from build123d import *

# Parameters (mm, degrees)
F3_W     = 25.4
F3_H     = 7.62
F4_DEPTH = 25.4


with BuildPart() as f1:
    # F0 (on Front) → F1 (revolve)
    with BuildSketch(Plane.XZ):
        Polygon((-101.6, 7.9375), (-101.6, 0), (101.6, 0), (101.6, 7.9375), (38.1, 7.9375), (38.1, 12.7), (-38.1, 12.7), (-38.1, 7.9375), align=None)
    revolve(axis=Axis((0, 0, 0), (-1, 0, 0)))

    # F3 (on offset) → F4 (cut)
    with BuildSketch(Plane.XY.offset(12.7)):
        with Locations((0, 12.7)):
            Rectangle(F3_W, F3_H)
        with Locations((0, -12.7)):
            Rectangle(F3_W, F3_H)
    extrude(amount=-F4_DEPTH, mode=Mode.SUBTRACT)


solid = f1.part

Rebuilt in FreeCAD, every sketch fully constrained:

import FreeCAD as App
import Part
import Sketcher
from FreeCAD import Vector
Q = App.Units.Quantity


def add_polygon(sketch, points):
    """Adds a closed chain of lines whose ends are joined by coincident constraints."""
    first, n = sketch.GeometryCount, len(points)
    for a, b in zip(points, points[1:] + points[:1]):
        sketch.addGeometry(Part.LineSegment(App.Vector(*a, 0), App.Vector(*b, 0)), False)
    for i in range(n):
        sketch.addConstraint(Sketcher.Constraint("Coincident", first + i, 2, first + (i + 1) % n, 1))

doc = App.newDocument("Part")
params = doc.addObject("Spreadsheet::Sheet", "Params")
for row, (alias, value) in enumerate([
    ("sketch1_width", "8 in"),
    ("sketch1_width2", "3 in"),
    ("sketch1_height", "0.3125 in"),
    ("revolution_angle", "360 deg"),
    ("sketch2_width", "1 in"),
    ("sketch2_height", "0.3 in"),
    ("pocket1_length", "1 in"),
], start=1):
    params.set(f"A{row}", alias)
    params.set(f"B{row}", "=" + value)
    params.setAlias(f"B{row}", alias)

body = doc.addObject("PartDesign::Body", "Body")

sketch1 = doc.addObject("Sketcher::SketchObject", "Sketch")
body.addObject(sketch1)
sketch1.AttachmentSupport = (doc.XZ_Plane, [""])
sketch1.MapMode = "FlatFace"
add_polygon(sketch1, [(-101.6, 7.9), (-101.6, 0), (101.6, 0), (101.6, 7.9), (38.1, 7.9), (38.1, 12.7), (-38.1, 12.7), (-38.1, 7.9)])
sketch1.addConstraint(Sketcher.Constraint("Vertical", 0))
sketch1.addConstraint(Sketcher.Constraint("Horizontal", 1))
sketch1.addConstraint(Sketcher.Constraint("Vertical", 2))
sketch1.addConstraint(Sketcher.Constraint("Horizontal", 3))
sketch1.addConstraint(Sketcher.Constraint("Vertical", 4))
sketch1.addConstraint(Sketcher.Constraint("Horizontal", 5))
sketch1.addConstraint(Sketcher.Constraint("Vertical", 6))
sketch1.addConstraint(Sketcher.Constraint("Horizontal", 7))
sketch1.addConstraint(Sketcher.Constraint("Symmetric", 0, 2, 1, 2, -1, 1))
sketch1.addConstraint(Sketcher.Constraint("Symmetric", 3, 2, 6, 2, -2))
sketch1.addConstraint(Sketcher.Constraint("DistanceX", 1, 1, 1, 2, Q("8 in")))
sketch1.addConstraint(Sketcher.Constraint("DistanceX", 5, 2, 5, 1, Q("3 in")))
sketch1.addConstraint(Sketcher.Constraint("DistanceY", -1, 1, 4, 2, Q("0.5 in")))
sketch1.addConstraint(Sketcher.Constraint("DistanceY", 0, 2, 0, 1, Q("0.3125 in")))
sketch1.setExpression("Constraints[18]", "Params.sketch1_width")
sketch1.setExpression("Constraints[19]", "Params.sketch1_width2")
sketch1.setExpression("Constraints[21]", "Params.sketch1_height")
revolution = doc.addObject("PartDesign::Revolution", "Revolution")
body.addObject(revolution)
revolution.Profile = sketch1
revolution.ReferenceAxis = (sketch1, ["H_Axis"])
revolution.setExpression("Angle", "Params.revolution_angle")

sketch2 = doc.addObject("Sketcher::SketchObject", "Sketch001")
body.addObject(sketch2)
sketch2.AttachmentSupport = (doc.XY_Plane, [""])
sketch2.MapMode = "FlatFace"
sketch2.AttachmentOffset = App.Placement(Vector(0, 0, 0.5 * 25.4), App.Rotation())
add_polygon(sketch2, [(-13, 17), (-13, 9), (13, 9), (13, 17)])
add_polygon(sketch2, [(-13, -9), (-13, -17), (13, -17), (13, -9)])
sketch2.addConstraint(Sketcher.Constraint("Vertical", 0))
sketch2.addConstraint(Sketcher.Constraint("Horizontal", 1))
sketch2.addConstraint(Sketcher.Constraint("Vertical", 2))
sketch2.addConstraint(Sketcher.Constraint("Horizontal", 3))
sketch2.addConstraint(Sketcher.Constraint("Vertical", 4))
sketch2.addConstraint(Sketcher.Constraint("Horizontal", 5))
sketch2.addConstraint(Sketcher.Constraint("Vertical", 6))
sketch2.addConstraint(Sketcher.Constraint("Horizontal", 7))
sketch2.addConstraint(Sketcher.Constraint("Symmetric", 2, 2, 4, 2, -1, 1))
sketch2.addConstraint(Sketcher.Constraint("Symmetric", 0, 2, 6, 2, -1, 1))
sketch2.addConstraint(Sketcher.Constraint("Vertical", 3, 2, 4, 2))
sketch2.addConstraint(Sketcher.Constraint("DistanceX", 1, 1, 1, 2, Q("1 in")))
sketch2.addConstraint(Sketcher.Constraint("DistanceY", 0, 2, 0, 1, Q("0.3 in")))
sketch2.addConstraint(Sketcher.Constraint("DistanceY", 4, 2, 0, 2, Q("1 in")))
sketch2.setExpression("Constraints[19]", "Params.sketch2_width")
sketch2.setExpression("Constraints[20]", "Params.sketch2_height")
pocket1 = doc.addObject("PartDesign::Pocket", "Pocket")
body.addObject(pocket1)
pocket1.Profile = sketch2
pocket1.setExpression("Length", "Params.pocket1_length")

doc.recompute()
